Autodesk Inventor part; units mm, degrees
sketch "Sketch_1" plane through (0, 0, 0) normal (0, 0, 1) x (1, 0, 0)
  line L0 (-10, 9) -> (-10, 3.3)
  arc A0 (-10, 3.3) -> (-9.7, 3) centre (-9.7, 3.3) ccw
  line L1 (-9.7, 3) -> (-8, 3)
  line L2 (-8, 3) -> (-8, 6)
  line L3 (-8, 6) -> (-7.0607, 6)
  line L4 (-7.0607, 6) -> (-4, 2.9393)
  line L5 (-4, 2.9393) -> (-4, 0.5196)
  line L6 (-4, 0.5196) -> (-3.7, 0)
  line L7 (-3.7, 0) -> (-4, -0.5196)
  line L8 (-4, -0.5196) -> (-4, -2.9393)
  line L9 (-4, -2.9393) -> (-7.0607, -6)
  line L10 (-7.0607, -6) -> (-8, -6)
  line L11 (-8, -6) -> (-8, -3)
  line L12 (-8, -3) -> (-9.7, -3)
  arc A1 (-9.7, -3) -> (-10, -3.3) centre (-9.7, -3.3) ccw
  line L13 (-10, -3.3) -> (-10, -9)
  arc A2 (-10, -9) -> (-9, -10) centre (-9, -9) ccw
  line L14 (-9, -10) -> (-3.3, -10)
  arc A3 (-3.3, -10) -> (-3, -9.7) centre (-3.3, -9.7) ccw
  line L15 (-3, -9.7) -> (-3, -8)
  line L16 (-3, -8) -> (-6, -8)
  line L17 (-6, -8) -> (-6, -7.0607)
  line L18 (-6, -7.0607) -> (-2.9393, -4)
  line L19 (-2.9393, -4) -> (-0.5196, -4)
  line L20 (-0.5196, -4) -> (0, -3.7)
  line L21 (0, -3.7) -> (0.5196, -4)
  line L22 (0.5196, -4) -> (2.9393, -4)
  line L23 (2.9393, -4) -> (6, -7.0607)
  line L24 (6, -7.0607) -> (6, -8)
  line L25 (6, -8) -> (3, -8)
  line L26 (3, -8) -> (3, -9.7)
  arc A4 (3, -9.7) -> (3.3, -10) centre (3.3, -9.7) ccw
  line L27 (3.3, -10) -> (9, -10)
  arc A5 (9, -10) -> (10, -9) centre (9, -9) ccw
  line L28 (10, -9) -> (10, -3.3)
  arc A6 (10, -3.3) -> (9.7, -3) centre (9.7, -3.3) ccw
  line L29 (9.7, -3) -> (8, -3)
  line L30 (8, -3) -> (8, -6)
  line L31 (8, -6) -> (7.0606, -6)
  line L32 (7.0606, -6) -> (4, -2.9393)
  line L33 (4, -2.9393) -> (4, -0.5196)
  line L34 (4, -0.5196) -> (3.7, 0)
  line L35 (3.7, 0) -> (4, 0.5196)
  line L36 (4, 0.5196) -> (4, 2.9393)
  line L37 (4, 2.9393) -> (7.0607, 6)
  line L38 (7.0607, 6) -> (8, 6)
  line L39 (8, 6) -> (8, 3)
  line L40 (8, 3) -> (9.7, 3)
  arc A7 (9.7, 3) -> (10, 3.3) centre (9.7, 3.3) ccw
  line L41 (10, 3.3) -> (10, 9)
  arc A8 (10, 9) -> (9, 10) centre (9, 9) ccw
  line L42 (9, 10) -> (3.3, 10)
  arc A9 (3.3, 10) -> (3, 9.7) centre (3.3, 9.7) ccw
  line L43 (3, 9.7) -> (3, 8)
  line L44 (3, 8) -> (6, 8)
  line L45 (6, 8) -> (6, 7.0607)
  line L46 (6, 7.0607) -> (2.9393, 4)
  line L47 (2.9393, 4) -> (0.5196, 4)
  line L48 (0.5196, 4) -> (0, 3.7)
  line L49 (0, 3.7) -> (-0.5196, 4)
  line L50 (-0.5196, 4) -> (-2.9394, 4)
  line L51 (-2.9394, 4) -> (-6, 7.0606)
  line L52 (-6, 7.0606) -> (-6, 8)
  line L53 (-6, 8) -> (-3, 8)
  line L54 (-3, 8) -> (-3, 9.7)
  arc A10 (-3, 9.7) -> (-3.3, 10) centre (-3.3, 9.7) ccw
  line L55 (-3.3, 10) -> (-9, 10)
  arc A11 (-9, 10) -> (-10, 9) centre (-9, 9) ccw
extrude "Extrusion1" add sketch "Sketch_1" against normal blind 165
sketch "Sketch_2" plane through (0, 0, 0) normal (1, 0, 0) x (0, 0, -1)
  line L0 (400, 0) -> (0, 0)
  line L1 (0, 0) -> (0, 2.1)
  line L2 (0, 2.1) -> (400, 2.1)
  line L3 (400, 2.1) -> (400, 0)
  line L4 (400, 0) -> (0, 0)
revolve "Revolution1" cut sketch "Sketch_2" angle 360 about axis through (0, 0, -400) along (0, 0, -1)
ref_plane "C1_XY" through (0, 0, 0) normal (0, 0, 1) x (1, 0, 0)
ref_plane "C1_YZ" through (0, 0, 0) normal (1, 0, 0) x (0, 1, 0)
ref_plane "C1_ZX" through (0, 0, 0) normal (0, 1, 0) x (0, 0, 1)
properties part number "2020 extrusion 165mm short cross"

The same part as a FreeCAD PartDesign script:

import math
import FreeCAD as App
import Part
import Sketcher
Q = App.Units.Quantity

doc = App.newDocument("Part")
body = doc.addObject("PartDesign::Body", "Body")

# Sketch on XY plane
sketch1 = body.newObject("Sketcher::SketchObject", "Sketch")
sketch1.AttachmentSupport = (doc.getObject("XY_Plane"), [""])
sketch1.MapMode = "FlatFace"
sketch1.addGeometry(Part.ArcOfCircle(Part.Circle(App.Vector(-9, 9, 0), App.Vector(0, 0, 1), 1), math.radians(90), math.radians(180)), False)
sketch1.addGeometry(Part.LineSegment(App.Vector(-10, 9, 0), App.Vector(-10, 3.3, 0)), False)
sketch1.addGeometry(Part.ArcOfCircle(Part.Circle(App.Vector(-9.7, 3.3, 0), App.Vector(0, 0, 1), 0.3), math.radians(180), math.radians(270)), False)
sketch1.addGeometry(Part.LineSegment(App.Vector(-9.7, 3, 0), App.Vector(-8, 3, 0)), False)
sketch1.addGeometry(Part.LineSegment(App.Vector(-8, 3, 0), App.Vector(-8, 6, 0)), False)
sketch1.addGeometry(Part.LineSegment(App.Vector(-8, 6, 0), App.Vector(-7.06, 6, 0)), False)
sketch1.addGeometry(Part.LineSegment(App.Vector(-7.06, 6, 0), App.Vector(-4, 2.94, 0)), False)
sketch1.addGeometry(Part.LineSegment(App.Vector(-4, 2.94, 0), App.Vector(-4, 0.52, 0)), False)
sketch1.addGeometry(Part.LineSegment(App.Vector(-4, 0.52, 0), App.Vector(-3.7, 0, 0)), False)
sketch1.addGeometry(Part.LineSegment(App.Vector(-3.7, 0, 0), App.Vector(-4, -0.52, 0)), False)
sketch1.addGeometry(Part.LineSegment(App.Vector(-4, -0.52, 0), App.Vector(-4, -2.94, 0)), False)
sketch1.addGeometry(Part.LineSegment(App.Vector(-4, -2.94, 0), App.Vector(-7.06, -6, 0)), False)
sketch1.addGeometry(Part.LineSegment(App.Vector(-7.06, -6, 0), App.Vector(-8, -6, 0)), False)
sketch1.addGeometry(Part.LineSegment(App.Vector(-8, -6, 0), App.Vector(-8, -3, 0)), False)
sketch1.addGeometry(Part.LineSegment(App.Vector(-8, -3, 0), App.Vector(-9.7, -3, 0)), False)
sketch1.addGeometry(Part.ArcOfCircle(Part.Circle(App.Vector(-9.7, -3.3, 0), App.Vector(0, 0, 1), 0.3), math.radians(90), math.radians(180)), False)
sketch1.addGeometry(Part.LineSegment(App.Vector(-10, -3.3, 0), App.Vector(-10, -9, 0)), False)
sketch1.addGeometry(Part.ArcOfCircle(Part.Circle(App.Vector(-9, -9, 0), App.Vector(0, 0, 1), 1), math.radians(180), math.radians(270)), False)
sketch1.addGeometry(Part.LineSegment(App.Vector(-9, -10, 0), App.Vector(-3.3, -10, 0)), False)
sketch1.addGeometry(Part.ArcOfCircle(Part.Circle(App.Vector(-3.3, -9.7, 0), App.Vector(0, 0, 1), 0.3), math.radians(-90), math.radians(0)), False)
sketch1.addGeometry(Part.LineSegment(App.Vector(-3, -9.7, 0), App.Vector(-3, -8, 0)), False)
sketch1.addGeometry(Part.LineSegment(App.Vector(-3, -8, 0), App.Vector(-6, -8, 0)), False)
sketch1.addGeometry(Part.LineSegment(App.Vector(-6, -8, 0), App.Vector(-6, -7.06, 0)), False)
sketch1.addGeometry(Part.LineSegment(App.Vector(-6, -7.06, 0), App.Vector(-2.94, -4, 0)), False)
sketch1.addGeometry(Part.LineSegment(App.Vector(-2.94, -4, 0), App.Vector(-0.52, -4, 0)), False)
sketch1.addGeometry(Part.LineSegment(App.Vector(-0.52, -4, 0), App.Vector(0, -3.7, 0)), False)
sketch1.addGeometry(Part.LineSegment(App.Vector(0, -3.7, 0), App.Vector(0.52, -4, 0)), False)
sketch1.addGeometry(Part.LineSegment(App.Vector(0.52, -4, 0), App.Vector(2.94, -4, 0)), False)
sketch1.addGeometry(Part.LineSegment(App.Vector(2.94, -4, 0), App.Vector(6, -7.06, 0)), False)
sketch1.addGeometry(Part.LineSegment(App.Vector(6, -7.06, 0), App.Vector(6, -8, 0)), False)
sketch1.addGeometry(Part.LineSegment(App.Vector(6, -8, 0), App.Vector(3, -8, 0)), False)
sketch1.addGeometry(Part.LineSegment(App.Vector(3, -8, 0), App.Vector(3, -9.7, 0)), False)
sketch1.addGeometry(Part.ArcOfCircle(Part.Circle(App.Vector(3.3, -9.7, 0), App.Vector(0, 0, 1), 0.3), math.radians(180), math.radians(270)), False)
sketch1.addGeometry(Part.LineSegment(App.Vector(3.3, -10, 0), App.Vector(9, -10, 0)), False)
sketch1.addGeometry(Part.ArcOfCircle(Part.Circle(App.Vector(9, -9, 0), App.Vector(0, 0, 1), 1), math.radians(-90), math.radians(0)), False)
sketch1.addGeometry(Part.LineSegment(App.Vector(10, -9, 0), App.Vector(10, -3.3, 0)), False)
sketch1.addGeometry(Part.ArcOfCircle(Part.Circle(App.Vector(9.7, -3.3, 0), App.Vector(0, 0, 1), 0.3), math.radians(0), math.radians(90)), False)
sketch1.addGeometry(Part.LineSegment(App.Vector(9.7, -3, 0), App.Vector(8, -3, 0)), False)
sketch1.addGeometry(Part.LineSegment(App.Vector(8, -3, 0), App.Vector(8, -6, 0)), False)
sketch1.addGeometry(Part.LineSegment(App.Vector(8, -6, 0), App.Vector(7.06, -6, 0)), False)
sketch1.addGeometry(Part.LineSegment(App.Vector(7.06, -6, 0), App.Vector(4, -2.94, 0)), False)
sketch1.addGeometry(Part.LineSegment(App.Vector(4, -2.94, 0), App.Vector(4, -0.52, 0)), False)
sketch1.addGeometry(Part.LineSegment(App.Vector(4, -0.52, 0), App.Vector(3.7, 0, 0)), False)
sketch1.addGeometry(Part.LineSegment(App.Vector(3.7, 0, 0), App.Vector(4, 0.52, 0)), False)
sketch1.addGeometry(Part.LineSegment(App.Vector(4, 0.52, 0), App.Vector(4, 2.94, 0)), False)
sketch1.addGeometry(Part.LineSegment(App.Vector(4, 2.94, 0), App.Vector(7.06, 6, 0)), False)
sketch1.addGeometry(Part.LineSegment(App.Vector(7.06, 6, 0), App.Vector(8, 6, 0)), False)
sketch1.addGeometry(Part.LineSegment(App.Vector(8, 6, 0), App.Vector(8, 3, 0)), False)
sketch1.addGeometry(Part.LineSegment(App.Vector(8, 3, 0), App.Vector(9.7, 3, 0)), False)
sketch1.addGeometry(Part.ArcOfCircle(Part.Circle(App.Vector(9.7, 3.3, 0), App.Vector(0, 0, 1), 0.3), math.radians(-90), math.radians(0)), False)
sketch1.addGeometry(Part.LineSegment(App.Vector(10, 3.3, 0), App.Vector(10, 9, 0)), False)
sketch1.addGeometry(Part.ArcOfCircle(Part.Circle(App.Vector(9, 9, 0), App.Vector(0, 0, 1), 1), math.radians(0), math.radians(90)), False)
sketch1.addGeometry(Part.LineSegment(App.Vector(9, 10, 0), App.Vector(3.3, 10, 0)), False)
sketch1.addGeometry(Part.ArcOfCircle(Part.Circle(App.Vector(3.3, 9.7, 0), App.Vector(0, 0, 1), 0.3), math.radians(90), math.radians(180)), False)
sketch1.addGeometry(Part.LineSegment(App.Vector(3, 9.7, 0), App.Vector(3, 8, 0)), False)
sketch1.addGeometry(Part.LineSegment(App.Vector(3, 8, 0), App.Vector(6, 8, 0)), False)
sketch1.addGeometry(Part.LineSegment(App.Vector(6, 8, 0), App.Vector(6, 7.06, 0)), False)
sketch1.addGeometry(Part.LineSegment(App.Vector(6, 7.06, 0), App.Vector(2.94, 4, 0)), False)
sketch1.addGeometry(Part.LineSegment(App.Vector(2.94, 4, 0), App.Vector(0.52, 4, 0)), False)
sketch1.addGeometry(Part.LineSegment(App.Vector(0.52, 4, 0), App.Vector(0, 3.7, 0)), False)
sketch1.addGeometry(Part.LineSegment(App.Vector(0, 3.7, 0), App.Vector(-0.52, 4, 0)), False)
sketch1.addGeometry(Part.LineSegment(App.Vector(-0.52, 4, 0), App.Vector(-2.94, 4, 0)), False)
sketch1.addGeometry(Part.LineSegment(App.Vector(-2.94, 4, 0), App.Vector(-6, 7.06, 0)), False)
sketch1.addGeometry(Part.LineSegment(App.Vector(-6, 7.06, 0), App.Vector(-6, 8, 0)), False)
sketch1.addGeometry(Part.LineSegment(App.Vector(-6, 8, 0), App.Vector(-3, 8, 0)), False)
sketch1.addGeometry(Part.LineSegment(App.Vector(-3, 8, 0), App.Vector(-3, 9.7, 0)), False)
sketch1.addGeometry(Part.ArcOfCircle(Part.Circle(App.Vector(-3.3, 9.7, 0), App.Vector(0, 0, 1), 0.3), math.radians(0), math.radians(90)), False)
sketch1.addGeometry(Part.LineSegment(App.Vector(-3.3, 10, 0), App.Vector(-9, 10, 0)), False)
sketch1.addConstraint(Sketcher.Constraint("Tangent", 0, 2, 1, 1))
sketch1.addConstraint(Sketcher.Constraint("Tangent", 1, 2, 2, 1))
sketch1.addConstraint(Sketcher.Constraint("Tangent", 2, 2, 3, 1))
sketch1.addConstraint(Sketcher.Constraint("Coincident", 3, 2, 4, 1))
sketch1.addConstraint(Sketcher.Constraint("Coincident", 4, 2, 5, 1))
sketch1.addConstraint(Sketcher.Constraint("Coincident", 5, 2, 6, 1))
sketch1.addConstraint(Sketcher.Constraint("Coincident", 6, 2, 7, 1))
sketch1.addConstraint(Sketcher.Constraint("Coincident", 7, 2, 8, 1))
sketch1.addConstraint(Sketcher.Constraint("Coincident", 8, 2, 9, 1))
sketch1.addConstraint(Sketcher.Constraint("Coincident", 9, 2, 10, 1))
sketch1.addConstraint(Sketcher.Constraint("Coincident", 10, 2, 11, 1))
sketch1.addConstraint(Sketcher.Constraint("Coincident", 11, 2, 12, 1))
sketch1.addConstraint(Sketcher.Constraint("Coincident", 12, 2, 13, 1))
sketch1.addConstraint(Sketcher.Constraint("Coincident", 13, 2, 14, 1))
sketch1.addConstraint(Sketcher.Constraint("Tangent", 14, 2, 15, 1))
sketch1.addConstraint(Sketcher.Constraint("Tangent", 15, 2, 16, 1))
sketch1.addConstraint(Sketcher.Constraint("Tangent", 16, 2, 17, 1))
sketch1.addConstraint(Sketcher.Constraint("Tangent", 17, 2, 18, 1))
sketch1.addConstraint(Sketcher.Constraint("Tangent", 18, 2, 19, 1))
sketch1.addConstraint(Sketcher.Constraint("Tangent", 19, 2, 20, 1))
sketch1.addConstraint(Sketcher.Constraint("Coincident", 20, 2, 21, 1))
sketch1.addConstraint(Sketcher.Constraint("Coincident", 21, 2, 22, 1))
sketch1.addConstraint(Sketcher.Constraint("Coincident", 22, 2, 23, 1))
sketch1.addConstraint(Sketcher.Constraint("Coincident", 23, 2, 24, 1))
sketch1.addConstraint(Sketcher.Constraint("Coincident", 24, 2, 25, 1))
sketch1.addConstraint(Sketcher.Constraint("Coincident", 25, 2, 26, 1))
sketch1.addConstraint(Sketcher.Constraint("Coincident", 26, 2, 27, 1))
sketch1.addConstraint(Sketcher.Constraint("Coincident", 27, 2, 28, 1))
sketch1.addConstraint(Sketcher.Constraint("Coincident", 28, 2, 29, 1))
sketch1.addConstraint(Sketcher.Constraint("Coincident", 29, 2, 30, 1))
sketch1.addConstraint(Sketcher.Constraint("Coincident", 30, 2, 31, 1))
sketch1.addConstraint(Sketcher.Constraint("Tangent", 31, 2, 32, 1))
sketch1.addConstraint(Sketcher.Constraint("Tangent", 32, 2, 33, 1))
sketch1.addConstraint(Sketcher.Constraint("Tangent", 33, 2, 34, 1))
sketch1.addConstraint(Sketcher.Constraint("Tangent", 34, 2, 35, 1))
sketch1.addConstraint(Sketcher.Constraint("Tangent", 35, 2, 36, 1))
sketch1.addConstraint(Sketcher.Constraint("Tangent", 36, 2, 37, 1))
sketch1.addConstraint(Sketcher.Constraint("Coincident", 37, 2, 38, 1))
sketch1.addConstraint(Sketcher.Constraint("Coincident", 38, 2, 39, 1))
sketch1.addConstraint(Sketcher.Constraint("Coincident", 39, 2, 40, 1))
sketch1.addConstraint(Sketcher.Constraint("Coincident", 40, 2, 41, 1))
sketch1.addConstraint(Sketcher.Constraint("Coincident", 41, 2, 42, 1))
sketch1.addConstraint(Sketcher.Constraint("Coincident", 42, 2, 43, 1))
sketch1.addConstraint(Sketcher.Constraint("Coincident", 43, 2, 44, 1))
sketch1.addConstraint(Sketcher.Constraint("Coincident", 44, 2, 45, 1))
sketch1.addConstraint(Sketcher.Constraint("Coincident", 45, 2, 46, 1))
sketch1.addConstraint(Sketcher.Constraint("Coincident", 46, 2, 47, 1))
sketch1.addConstraint(Sketcher.Constraint("Coincident", 47, 2, 48, 1))
sketch1.addConstraint(Sketcher.Constraint("Tangent", 48, 2, 49, 1))
sketch1.addConstraint(Sketcher.Constraint("Tangent", 49, 2, 50, 1))
sketch1.addConstraint(Sketcher.Constraint("Tangent", 50, 2, 51, 1))
sketch1.addConstraint(Sketcher.Constraint("Tangent", 51, 2, 52, 1))
sketch1.addConstraint(Sketcher.Constraint("Tangent", 52, 2, 53, 1))
sketch1.addConstraint(Sketcher.Constraint("Tangent", 53, 2, 54, 1))
sketch1.addConstraint(Sketcher.Constraint("Coincident", 54, 2, 55, 1))
sketch1.addConstraint(Sketcher.Constraint("Coincident", 55, 2, 56, 1))
sketch1.addConstraint(Sketcher.Constraint("Coincident", 56, 2, 57, 1))
sketch1.addConstraint(Sketcher.Constraint("Coincident", 57, 2, 58, 1))
sketch1.addConstraint(Sketcher.Constraint("Coincident", 58, 2, 59, 1))
sketch1.addConstraint(Sketcher.Constraint("Coincident", 59, 2, 60, 1))
sketch1.addConstraint(Sketcher.Constraint("Coincident", 60, 2, 61, 1))
sketch1.addConstraint(Sketcher.Constraint("Coincident", 61, 2, 62, 1))
sketch1.addConstraint(Sketcher.Constraint("Coincident", 62, 2, 63, 1))
sketch1.addConstraint(Sketcher.Constraint("Coincident", 63, 2, 64, 1))
sketch1.addConstraint(Sketcher.Constraint("Coincident", 64, 2, 65, 1))
sketch1.addConstraint(Sketcher.Constraint("Tangent", 65, 2, 66, 1))
sketch1.addConstraint(Sketcher.Constraint("Tangent", 66, 2, 67, 1))
sketch1.addConstraint(Sketcher.Constraint("Tangent", 67, 2, 0, 1))
sketch1.addConstraint(Sketcher.Constraint("Vertical", 1))
sketch1.addConstraint(Sketcher.Constraint("Horizontal", 3))
sketch1.addConstraint(Sketcher.Constraint("Vertical", 4))
sketch1.addConstraint(Sketcher.Constraint("Horizontal", 5))
sketch1.addConstraint(Sketcher.Constraint("Vertical", 7))
sketch1.addConstraint(Sketcher.Constraint("Vertical", 10))
sketch1.addConstraint(Sketcher.Constraint("Horizontal", 12))
sketch1.addConstraint(Sketcher.Constraint("Vertical", 13))
sketch1.addConstraint(Sketcher.Constraint("Horizontal", 14))
sketch1.addConstraint(Sketcher.Constraint("Vertical", 16))
sketch1.addConstraint(Sketcher.Constraint("Horizontal", 18))
sketch1.addConstraint(Sketcher.Constraint("Vertical", 20))
sketch1.addConstraint(Sketcher.Constraint("Horizontal", 21))
sketch1.addConstraint(Sketcher.Constraint("Vertical", 22))
sketch1.addConstraint(Sketcher.Constraint("Horizontal", 24))
sketch1.addConstraint(Sketcher.Constraint("Horizontal", 27))
sketch1.addConstraint(Sketcher.Constraint("Vertical", 29))
sketch1.addConstraint(Sketcher.Constraint("Horizontal", 30))
sketch1.addConstraint(Sketcher.Constraint("Vertical", 31))
sketch1.addConstraint(Sketcher.Constraint("Horizontal", 33))
sketch1.addConstraint(Sketcher.Constraint("Vertical", 35))
sketch1.addConstraint(Sketcher.Constraint("Horizontal", 37))
sketch1.addConstraint(Sketcher.Constraint("Vertical", 38))
sketch1.addConstraint(Sketcher.Constraint("Horizontal", 39))
sketch1.addConstraint(Sketcher.Constraint("Vertical", 41))
sketch1.addConstraint(Sketcher.Constraint("Vertical", 44))
sketch1.addConstraint(Sketcher.Constraint("Horizontal", 46))
sketch1.addConstraint(Sketcher.Constraint("Vertical", 47))
sketch1.addConstraint(Sketcher.Constraint("Horizontal", 48))
sketch1.addConstraint(Sketcher.Constraint("Vertical", 50))
sketch1.addConstraint(Sketcher.Constraint("Horizontal", 52))
sketch1.addConstraint(Sketcher.Constraint("Vertical", 54))
sketch1.addConstraint(Sketcher.Constraint("Horizontal", 55))
sketch1.addConstraint(Sketcher.Constraint("Vertical", 56))
sketch1.addConstraint(Sketcher.Constraint("Horizontal", 58))
sketch1.addConstraint(Sketcher.Constraint("Horizontal", 61))
sketch1.addConstraint(Sketcher.Constraint("Vertical", 63))
sketch1.addConstraint(Sketcher.Constraint("Horizontal", 64))
sketch1.addConstraint(Sketcher.Constraint("Vertical", 65))
sketch1.addConstraint(Sketcher.Constraint("Horizontal", 67))
sketch1.addConstraint(Sketcher.Constraint("Equal", 2, 15))
sketch1.addConstraint(Sketcher.Constraint("Equal", 0, 17))
sketch1.addConstraint(Sketcher.Constraint("Equal", 15, 19))
sketch1.addConstraint(Sketcher.Constraint("Equal", 19, 32))
sketch1.addConstraint(Sketcher.Constraint("Equal", 17, 34))
sketch1.addConstraint(Sketcher.Constraint("Equal", 32, 36))
sketch1.addConstraint(Sketcher.Constraint("Equal", 36, 49))
sketch1.addConstraint(Sketcher.Constraint("Equal", 34, 51))
sketch1.addConstraint(Sketcher.Constraint("Equal", 49, 53))
sketch1.addConstraint(Sketcher.Constraint("Equal", 53, 66))
sketch1.addConstraint(Sketcher.Constraint("Symmetric", 0, 3, 34, 3, -1, 1))
sketch1.addConstraint(Sketcher.Constraint("Symmetric", 15, 3, 49, 3, -1, 1))
sketch1.addConstraint(Sketcher.Constraint("Symmetric", 19, 3, 53, 3, -1, 1))
sketch1.addConstraint(Sketcher.Constraint("Symmetric", 3, 2, 37, 2, -1, 1))
sketch1.addConstraint(Sketcher.Constraint("Symmetric", 5, 2, 39, 2, -1, 1))
sketch1.addConstraint(Sketcher.Constraint("Symmetric", 6, 2, 40, 2, -1, 1))
sketch1.addConstraint(Sketcher.Constraint("Symmetric", 8, 2, 42, 2, -1, 1))
sketch1.addConstraint(Sketcher.Constraint("Symmetric", 9, 2, 43, 2, -1, 1))
sketch1.addConstraint(Sketcher.Constraint("Symmetric", 11, 2, 45, 2, -1, 1))
sketch1.addConstraint(Sketcher.Constraint("Symmetric", 21, 2, 55, 2, -1, 1))
sketch1.addConstraint(Sketcher.Constraint("Symmetric", 23, 2, 57, 2, -1, 1))
sketch1.addConstraint(Sketcher.Constraint("Symmetric", 25, 2, 59, 2, -1, 1))
sketch1.addConstraint(Sketcher.Constraint("Symmetric", 26, 2, 60, 2, -1, 1))
sketch1.addConstraint(Sketcher.Constraint("Symmetric", 28, 2, 62, 2, -1, 1))
sketch1.addConstraint(Sketcher.Constraint("Symmetric", 30, 2, 64, 2, -1, 1))
sketch1.addConstraint(Sketcher.Constraint("Symmetric", 19, 3, 32, 3, -2))
sketch1.addConstraint(Sketcher.Constraint("Symmetric", 15, 3, 36, 3, -2))
sketch1.addConstraint(Sketcher.Constraint("Symmetric", 24, 2, 26, 2, -2))
sketch1.addConstraint(Sketcher.Constraint("Symmetric", 22, 2, 28, 2, -2))
sketch1.addConstraint(Sketcher.Constraint("Symmetric", 12, 2, 38, 2, -2))
sketch1.addConstraint(Sketcher.Constraint("Symmetric", 10, 2, 40, 2, -2))
sketch1.addConstraint(Sketcher.Constraint("PointOnObject", 8, 2, -1))
sketch1.addConstraint(Sketcher.Constraint("PointOnObject", 25, 2, -2))
sketch1.addConstraint(Sketcher.Constraint("Perpendicular", 6, 11))
sketch1.addConstraint(Sketcher.Constraint("Parallel", 11, 23))
sketch1.addConstraint(Sketcher.Constraint("Perpendicular", 8, 25))
sketch1.addConstraint(Sketcher.Constraint("Perpendicular", 9, 26))
sketch1.addConstraint(Sketcher.Constraint("Perpendicular", 23, 28))
sketch1.addConstraint(Sketcher.Constraint("Perpendicular", 25, 42))
sketch1.addConstraint(Sketcher.Constraint("Perpendicular", 40, 45))
sketch1.addConstraint(Sketcher.Constraint("Parallel", 45, 57))
sketch1.addConstraint(Sketcher.Constraint("Perpendicular", 42, 59))
sketch1.addConstraint(Sketcher.Constraint("Perpendicular", 57, 62))
sketch1.addConstraint(Sketcher.Constraint("Horizontal", 21, 2, 29, 2))
sketch1.addConstraint(Sketcher.Constraint("Vertical", 5, 2, 11, 2))
sketch1.addConstraint(Sketcher.Constraint("Vertical", 38, 2, 46, 2))
sketch1.addConstraint(Sketcher.Constraint("Equal", 67, 1))
sketch1.addConstraint(Sketcher.Constraint("Equal", 64, 4))
sketch1.addConstraint(Sketcher.Constraint("Equal", 61, 7))
sketch1.addConstraint(Sketcher.Constraint("Equal", 48, 20))
sketch1.addConstraint(Sketcher.Constraint("Equal", 46, 22))
sketch1.addConstraint(Sketcher.Constraint("Equal", 11, 23))
sketch1.addConstraint(Sketcher.Constraint("Equal", 9, 25))
sketch1.addConstraint(Sketcher.Constraint("Radius", 0, Q("1 mm")))
sketch1.addConstraint(Sketcher.Constraint("Radius", 2, Q("0.3 mm")))
sketch1.addConstraint(Sketcher.Constraint("DistanceX", 21, 2, 21, 1, Q("3 mm")))
sketch1.addConstraint(Sketcher.Constraint("Angle", 8, Q("-59.9993 deg")))
sketch1.addConstraint(Sketcher.Constraint("DistanceX", 3, 1, 3, 2, Q("1.7 mm")))
sketch1.addConstraint(Sketcher.Constraint("DistanceX", 18, 1, 18, 2, Q("5.7 mm")))
sketch1.addConstraint(Sketcher.Constraint("DistanceX", 0, 3, -1, 1, Q("9 mm")))
sketch1.addConstraint(Sketcher.Constraint("DistanceX", 6, 2, -1, 1, Q("4 mm")))
sketch1.addConstraint(Sketcher.Constraint("Distance", 8, Q("0.6 mm")))
sketch1.addConstraint(Sketcher.Constraint("DistanceX", 5, 1, 5, 2, Q("0.9393 mm")))
pad1 = body.newObject("PartDesign::Pad", "Pad")
pad1.Profile = sketch1
pad1.Length = 165
pad1.Reversed = True

# Sketch on YZ plane
sketch2 = body.newObject("Sketcher::SketchObject", "Sketch001")
sketch2.AttachmentSupport = (doc.getObject("YZ_Plane"), [""])
sketch2.MapMode = "FlatFace"
sketch2.addGeometry(Part.LineSegment(App.Vector(0, 0, 0), App.Vector(0, -400, 0)), False)
sketch2.addGeometry(Part.LineSegment(App.Vector(0, -400, 0), App.Vector(2.1, -400, 0)), False)
sketch2.addGeometry(Part.LineSegment(App.Vector(2.1, -400, 0), App.Vector(2.1, 0, 0)), False)
sketch2.addGeometry(Part.LineSegment(App.Vector(2.1, 0, 0), App.Vector(0, 0, 0)), False)
sketch2.addConstraint(Sketcher.Constraint("Coincident", 0, 2, 1, 1))
sketch2.addConstraint(Sketcher.Constraint("Coincident", 1, 2, 2, 1))
sketch2.addConstraint(Sketcher.Constraint("Coincident", 2, 2, 3, 1))
sketch2.addConstraint(Sketcher.Constraint("Coincident", 3, 2, 0, 1))
sketch2.addConstraint(Sketcher.Constraint("Vertical", 0))
sketch2.addConstraint(Sketcher.Constraint("Horizontal", 1))
sketch2.addConstraint(Sketcher.Constraint("Vertical", 2))
sketch2.addConstraint(Sketcher.Constraint("Horizontal", 3))
sketch2.addConstraint(Sketcher.Constraint("Coincident", 3, 2, -1, 1))
sketch2.addConstraint(Sketcher.Constraint("DistanceY", 0, 2, 0, 1, Q("400 mm")))
sketch2.addConstraint(Sketcher.Constraint("DistanceX", 1, 1, 1, 2, Q("2.1 mm")))
groove = body.newObject("PartDesign::Groove", "Groove")
groove.Profile = sketch2
groove.ReferenceAxis = (sketch2, ["V_Axis"])
groove.Angle = 360

doc.recompute()
